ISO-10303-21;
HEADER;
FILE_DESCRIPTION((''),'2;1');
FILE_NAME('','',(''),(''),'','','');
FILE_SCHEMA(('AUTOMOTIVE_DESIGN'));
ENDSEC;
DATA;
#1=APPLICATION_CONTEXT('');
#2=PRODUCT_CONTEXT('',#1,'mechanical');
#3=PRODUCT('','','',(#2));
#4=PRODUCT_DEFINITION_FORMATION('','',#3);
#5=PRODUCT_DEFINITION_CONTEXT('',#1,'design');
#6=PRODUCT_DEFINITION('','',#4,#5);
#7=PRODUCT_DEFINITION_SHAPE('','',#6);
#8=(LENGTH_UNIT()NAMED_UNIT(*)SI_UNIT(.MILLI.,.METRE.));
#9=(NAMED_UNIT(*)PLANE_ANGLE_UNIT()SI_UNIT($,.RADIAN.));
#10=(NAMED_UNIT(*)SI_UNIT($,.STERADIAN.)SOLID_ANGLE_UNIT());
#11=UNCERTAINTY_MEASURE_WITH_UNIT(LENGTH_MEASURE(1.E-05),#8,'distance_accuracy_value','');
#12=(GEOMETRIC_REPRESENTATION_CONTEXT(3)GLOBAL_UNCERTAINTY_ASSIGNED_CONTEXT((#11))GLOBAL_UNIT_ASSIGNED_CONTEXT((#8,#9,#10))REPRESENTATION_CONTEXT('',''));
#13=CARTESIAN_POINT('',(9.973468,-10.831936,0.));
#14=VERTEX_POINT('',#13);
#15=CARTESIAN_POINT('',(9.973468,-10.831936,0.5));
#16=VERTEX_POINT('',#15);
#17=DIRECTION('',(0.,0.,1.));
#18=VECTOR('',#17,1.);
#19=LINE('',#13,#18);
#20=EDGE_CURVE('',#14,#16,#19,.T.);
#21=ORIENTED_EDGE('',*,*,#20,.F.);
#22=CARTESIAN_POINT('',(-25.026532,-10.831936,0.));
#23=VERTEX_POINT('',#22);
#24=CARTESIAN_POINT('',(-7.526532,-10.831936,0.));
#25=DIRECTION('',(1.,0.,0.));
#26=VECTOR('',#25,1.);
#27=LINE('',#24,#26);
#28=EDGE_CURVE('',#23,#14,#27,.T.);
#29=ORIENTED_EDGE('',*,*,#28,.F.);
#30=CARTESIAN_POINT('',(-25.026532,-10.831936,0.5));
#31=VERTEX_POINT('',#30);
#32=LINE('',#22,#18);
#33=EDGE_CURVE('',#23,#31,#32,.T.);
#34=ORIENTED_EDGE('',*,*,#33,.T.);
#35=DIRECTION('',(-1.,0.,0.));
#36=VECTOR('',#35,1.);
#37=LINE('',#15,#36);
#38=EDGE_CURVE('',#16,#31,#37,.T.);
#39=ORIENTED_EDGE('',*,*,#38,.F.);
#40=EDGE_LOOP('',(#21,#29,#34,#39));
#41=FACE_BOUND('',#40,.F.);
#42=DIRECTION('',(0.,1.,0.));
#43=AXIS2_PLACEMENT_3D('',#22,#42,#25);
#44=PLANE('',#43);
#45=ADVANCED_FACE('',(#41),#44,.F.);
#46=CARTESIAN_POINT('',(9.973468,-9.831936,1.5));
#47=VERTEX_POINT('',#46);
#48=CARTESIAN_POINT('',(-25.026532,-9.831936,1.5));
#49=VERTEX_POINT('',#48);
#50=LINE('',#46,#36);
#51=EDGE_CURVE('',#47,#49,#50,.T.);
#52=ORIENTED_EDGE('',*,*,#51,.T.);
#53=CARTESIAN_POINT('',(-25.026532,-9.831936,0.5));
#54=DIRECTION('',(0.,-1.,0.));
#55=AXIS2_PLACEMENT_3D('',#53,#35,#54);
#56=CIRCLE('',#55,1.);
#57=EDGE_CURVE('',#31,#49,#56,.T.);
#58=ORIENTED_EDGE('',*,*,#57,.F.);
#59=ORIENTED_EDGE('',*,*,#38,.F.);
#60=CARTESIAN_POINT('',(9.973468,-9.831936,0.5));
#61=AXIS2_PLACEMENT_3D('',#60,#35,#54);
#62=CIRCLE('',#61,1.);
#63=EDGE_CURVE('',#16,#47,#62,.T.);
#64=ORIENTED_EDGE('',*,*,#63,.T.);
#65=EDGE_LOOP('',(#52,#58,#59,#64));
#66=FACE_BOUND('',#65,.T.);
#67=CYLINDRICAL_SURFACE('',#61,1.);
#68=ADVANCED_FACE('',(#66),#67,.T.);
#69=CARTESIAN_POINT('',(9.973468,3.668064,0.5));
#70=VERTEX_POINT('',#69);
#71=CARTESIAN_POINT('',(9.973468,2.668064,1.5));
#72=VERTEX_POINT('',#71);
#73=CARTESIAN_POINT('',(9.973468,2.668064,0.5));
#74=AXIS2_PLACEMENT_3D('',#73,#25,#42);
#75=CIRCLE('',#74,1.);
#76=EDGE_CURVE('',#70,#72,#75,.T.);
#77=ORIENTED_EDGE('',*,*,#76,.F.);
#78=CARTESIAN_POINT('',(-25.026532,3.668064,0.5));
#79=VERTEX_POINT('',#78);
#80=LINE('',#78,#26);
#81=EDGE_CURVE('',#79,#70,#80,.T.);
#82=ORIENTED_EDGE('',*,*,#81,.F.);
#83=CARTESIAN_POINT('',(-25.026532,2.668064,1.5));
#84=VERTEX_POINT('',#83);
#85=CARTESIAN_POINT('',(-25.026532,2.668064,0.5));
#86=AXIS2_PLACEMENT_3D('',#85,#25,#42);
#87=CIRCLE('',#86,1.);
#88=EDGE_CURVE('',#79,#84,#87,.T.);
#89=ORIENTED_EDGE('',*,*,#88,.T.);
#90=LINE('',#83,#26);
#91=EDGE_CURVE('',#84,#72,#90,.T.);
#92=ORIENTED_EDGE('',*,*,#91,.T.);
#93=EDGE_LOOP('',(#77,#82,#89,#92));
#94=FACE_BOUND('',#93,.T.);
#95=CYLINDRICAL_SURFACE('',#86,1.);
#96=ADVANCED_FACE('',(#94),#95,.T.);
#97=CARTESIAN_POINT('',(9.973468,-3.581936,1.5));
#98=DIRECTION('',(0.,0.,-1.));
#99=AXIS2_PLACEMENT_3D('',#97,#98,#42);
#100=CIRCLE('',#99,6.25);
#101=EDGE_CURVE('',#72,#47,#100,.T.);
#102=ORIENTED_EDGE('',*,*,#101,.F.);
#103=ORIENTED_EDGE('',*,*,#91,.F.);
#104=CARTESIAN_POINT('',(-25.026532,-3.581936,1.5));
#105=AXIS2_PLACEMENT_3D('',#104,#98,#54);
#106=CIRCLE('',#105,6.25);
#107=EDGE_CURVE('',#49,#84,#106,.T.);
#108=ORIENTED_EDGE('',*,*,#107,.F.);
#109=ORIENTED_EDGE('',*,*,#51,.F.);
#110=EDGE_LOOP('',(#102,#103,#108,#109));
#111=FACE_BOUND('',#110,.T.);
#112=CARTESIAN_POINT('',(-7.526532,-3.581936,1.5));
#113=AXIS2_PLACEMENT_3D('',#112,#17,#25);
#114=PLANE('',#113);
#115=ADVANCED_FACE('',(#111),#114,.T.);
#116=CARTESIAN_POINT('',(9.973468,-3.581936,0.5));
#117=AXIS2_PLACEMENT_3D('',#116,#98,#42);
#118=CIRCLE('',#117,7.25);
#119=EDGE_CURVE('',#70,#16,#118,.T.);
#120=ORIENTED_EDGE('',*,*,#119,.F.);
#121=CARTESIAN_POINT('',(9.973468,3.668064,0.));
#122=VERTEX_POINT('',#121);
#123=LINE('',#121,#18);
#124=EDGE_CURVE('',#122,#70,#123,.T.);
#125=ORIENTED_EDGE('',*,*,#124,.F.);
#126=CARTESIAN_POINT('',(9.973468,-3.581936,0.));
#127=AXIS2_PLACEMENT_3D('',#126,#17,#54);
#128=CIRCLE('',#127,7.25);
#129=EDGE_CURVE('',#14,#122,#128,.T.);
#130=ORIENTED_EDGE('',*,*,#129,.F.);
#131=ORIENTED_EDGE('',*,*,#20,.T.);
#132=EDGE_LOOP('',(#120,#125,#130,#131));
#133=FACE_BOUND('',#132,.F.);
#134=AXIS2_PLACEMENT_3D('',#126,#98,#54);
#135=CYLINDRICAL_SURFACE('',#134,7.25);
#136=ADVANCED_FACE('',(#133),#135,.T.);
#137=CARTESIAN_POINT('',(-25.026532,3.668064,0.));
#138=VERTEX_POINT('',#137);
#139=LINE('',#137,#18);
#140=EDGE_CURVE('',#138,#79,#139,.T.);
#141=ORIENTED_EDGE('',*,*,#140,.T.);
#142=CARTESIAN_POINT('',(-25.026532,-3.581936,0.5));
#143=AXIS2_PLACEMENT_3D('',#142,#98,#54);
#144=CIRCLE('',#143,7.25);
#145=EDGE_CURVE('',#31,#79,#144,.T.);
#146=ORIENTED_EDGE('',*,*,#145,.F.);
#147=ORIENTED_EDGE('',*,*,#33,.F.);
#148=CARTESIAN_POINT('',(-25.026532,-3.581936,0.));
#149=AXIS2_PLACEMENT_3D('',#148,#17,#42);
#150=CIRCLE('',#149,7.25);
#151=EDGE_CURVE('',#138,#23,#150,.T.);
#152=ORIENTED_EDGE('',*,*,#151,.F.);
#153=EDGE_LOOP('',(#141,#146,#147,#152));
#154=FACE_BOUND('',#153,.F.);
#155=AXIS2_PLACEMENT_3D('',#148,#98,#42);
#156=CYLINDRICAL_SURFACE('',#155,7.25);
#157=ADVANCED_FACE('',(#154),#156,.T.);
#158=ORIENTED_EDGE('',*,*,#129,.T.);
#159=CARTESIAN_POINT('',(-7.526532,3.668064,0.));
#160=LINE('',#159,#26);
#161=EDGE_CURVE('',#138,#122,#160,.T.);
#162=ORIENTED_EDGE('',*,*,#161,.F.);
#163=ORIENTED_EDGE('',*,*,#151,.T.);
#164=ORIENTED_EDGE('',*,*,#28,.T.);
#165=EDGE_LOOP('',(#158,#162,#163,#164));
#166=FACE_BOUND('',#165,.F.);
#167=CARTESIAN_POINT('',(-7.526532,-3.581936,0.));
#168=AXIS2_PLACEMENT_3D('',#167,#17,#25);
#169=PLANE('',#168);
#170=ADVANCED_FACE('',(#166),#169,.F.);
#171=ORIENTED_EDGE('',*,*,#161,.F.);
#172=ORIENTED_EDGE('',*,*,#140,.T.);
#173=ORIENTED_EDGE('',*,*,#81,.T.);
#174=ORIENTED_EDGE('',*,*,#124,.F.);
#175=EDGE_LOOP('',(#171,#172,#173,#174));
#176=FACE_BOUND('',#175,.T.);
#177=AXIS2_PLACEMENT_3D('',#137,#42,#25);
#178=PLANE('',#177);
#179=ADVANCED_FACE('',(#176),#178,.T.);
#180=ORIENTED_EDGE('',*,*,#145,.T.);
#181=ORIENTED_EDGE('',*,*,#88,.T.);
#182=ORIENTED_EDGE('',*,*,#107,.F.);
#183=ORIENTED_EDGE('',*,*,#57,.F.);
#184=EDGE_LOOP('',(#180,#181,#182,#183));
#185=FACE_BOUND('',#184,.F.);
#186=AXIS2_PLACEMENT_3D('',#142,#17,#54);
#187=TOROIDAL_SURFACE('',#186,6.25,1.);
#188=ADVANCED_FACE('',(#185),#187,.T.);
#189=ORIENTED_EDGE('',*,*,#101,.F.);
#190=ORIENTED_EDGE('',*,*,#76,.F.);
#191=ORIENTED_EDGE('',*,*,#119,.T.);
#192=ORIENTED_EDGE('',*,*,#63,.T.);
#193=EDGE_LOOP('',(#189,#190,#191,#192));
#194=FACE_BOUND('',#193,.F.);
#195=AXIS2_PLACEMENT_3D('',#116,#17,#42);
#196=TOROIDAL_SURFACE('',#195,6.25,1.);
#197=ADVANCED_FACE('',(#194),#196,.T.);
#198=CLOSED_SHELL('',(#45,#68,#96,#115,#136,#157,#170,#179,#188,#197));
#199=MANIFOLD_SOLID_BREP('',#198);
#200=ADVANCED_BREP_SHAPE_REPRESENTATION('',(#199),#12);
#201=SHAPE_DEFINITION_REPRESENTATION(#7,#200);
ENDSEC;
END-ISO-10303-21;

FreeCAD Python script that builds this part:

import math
import FreeCAD as App
import Part
import Sketcher

V = App.Vector


def edges_at(feature, points):
    """Names of the edges that pass closest to the given points."""
    edges = feature.Shape.Edges
    near = lambda p: min(range(len(edges)), key=lambda i: edges[i].distToShape(Part.Vertex(*p))[0])
    return sorted({f"Edge{near(p) + 1}" for p in points})

doc = App.newDocument("Part")
params = doc.addObject("Spreadsheet::Sheet", "Params")
for row, (alias, value) in enumerate([
    ("sketch1_width", "35 mm"),
    ("sketch1_radius", "7.25 mm"),
    ("pad1_length", "1.5 mm"),
    ("fillet_radius", "1 mm"),
], start=1):
    params.set(f"A{row}", alias)
    params.set(f"B{row}", "=" + value)
    params.setAlias(f"B{row}", alias)

body = doc.addObject("PartDesign::Body", "Body")

# Sketch on XY plane
sketch1 = body.newObject("Sketcher::SketchObject", "Sketch")
sketch1.AttachmentSupport = (doc.getObject("XY_Plane"), [""])
sketch1.MapMode = "FlatFace"
sketch1.addGeometry(Part.LineSegment(V(-25, -11, 0), V(10, -11, 0)), False)
sketch1.addGeometry(Part.ArcOfCircle(Part.Circle(V(10, -4, 0), V(0, 0, 1), 7), math.radians(-90), math.radians(90)), False)
sketch1.addGeometry(Part.LineSegment(V(10, 4, 0), V(-25, 4, 0)), False)
sketch1.addGeometry(Part.ArcOfCircle(Part.Circle(V(-25, -4, 0), V(0, 0, 1), 7), math.radians(90), math.radians(270)), False)
sketch1.addConstraint(Sketcher.Constraint("Tangent", 0, 2, 1, 1))
sketch1.addConstraint(Sketcher.Constraint("Tangent", 1, 2, 2, 1))
sketch1.addConstraint(Sketcher.Constraint("Tangent", 2, 2, 3, 1))
sketch1.addConstraint(Sketcher.Constraint("Tangent", 3, 2, 0, 1))
sketch1.addConstraint(Sketcher.Constraint("Horizontal", 0))
sketch1.addConstraint(Sketcher.Constraint("Horizontal", 2))
sketch1.addConstraint(Sketcher.Constraint("DistanceX", 0, 1, 0, 2, 35.0))
sketch1.addConstraint(Sketcher.Constraint("Radius", 1, 7.25))
sketch1.addConstraint(Sketcher.Constraint("DistanceX", 3, 3, -1, 1, 25.026532))
sketch1.addConstraint(Sketcher.Constraint("DistanceY", 1, 3, -1, 1, 3.581936))
sketch1.setExpression("Constraints[6]", "Params.sketch1_width")
sketch1.setExpression("Constraints[7]", "Params.sketch1_radius")
pad1 = body.newObject("PartDesign::Pad", "Pad")
pad1.Profile = sketch1
pad1.setExpression("Length", "Params.pad1_length")
doc.recompute()

fillet = body.newObject("PartDesign::Fillet", "Fillet")
fillet.Base = (pad1, edges_at(pad1, [
    (-7.527, 3.668, 1.5),
    (-32.277, -3.582, 1.5),
    (-7.527, -10.832, 1.5),
    (17.223, -3.582, 1.5),
]))
fillet.setExpression("Radius", "Params.fillet_radius")

doc.recompute()
